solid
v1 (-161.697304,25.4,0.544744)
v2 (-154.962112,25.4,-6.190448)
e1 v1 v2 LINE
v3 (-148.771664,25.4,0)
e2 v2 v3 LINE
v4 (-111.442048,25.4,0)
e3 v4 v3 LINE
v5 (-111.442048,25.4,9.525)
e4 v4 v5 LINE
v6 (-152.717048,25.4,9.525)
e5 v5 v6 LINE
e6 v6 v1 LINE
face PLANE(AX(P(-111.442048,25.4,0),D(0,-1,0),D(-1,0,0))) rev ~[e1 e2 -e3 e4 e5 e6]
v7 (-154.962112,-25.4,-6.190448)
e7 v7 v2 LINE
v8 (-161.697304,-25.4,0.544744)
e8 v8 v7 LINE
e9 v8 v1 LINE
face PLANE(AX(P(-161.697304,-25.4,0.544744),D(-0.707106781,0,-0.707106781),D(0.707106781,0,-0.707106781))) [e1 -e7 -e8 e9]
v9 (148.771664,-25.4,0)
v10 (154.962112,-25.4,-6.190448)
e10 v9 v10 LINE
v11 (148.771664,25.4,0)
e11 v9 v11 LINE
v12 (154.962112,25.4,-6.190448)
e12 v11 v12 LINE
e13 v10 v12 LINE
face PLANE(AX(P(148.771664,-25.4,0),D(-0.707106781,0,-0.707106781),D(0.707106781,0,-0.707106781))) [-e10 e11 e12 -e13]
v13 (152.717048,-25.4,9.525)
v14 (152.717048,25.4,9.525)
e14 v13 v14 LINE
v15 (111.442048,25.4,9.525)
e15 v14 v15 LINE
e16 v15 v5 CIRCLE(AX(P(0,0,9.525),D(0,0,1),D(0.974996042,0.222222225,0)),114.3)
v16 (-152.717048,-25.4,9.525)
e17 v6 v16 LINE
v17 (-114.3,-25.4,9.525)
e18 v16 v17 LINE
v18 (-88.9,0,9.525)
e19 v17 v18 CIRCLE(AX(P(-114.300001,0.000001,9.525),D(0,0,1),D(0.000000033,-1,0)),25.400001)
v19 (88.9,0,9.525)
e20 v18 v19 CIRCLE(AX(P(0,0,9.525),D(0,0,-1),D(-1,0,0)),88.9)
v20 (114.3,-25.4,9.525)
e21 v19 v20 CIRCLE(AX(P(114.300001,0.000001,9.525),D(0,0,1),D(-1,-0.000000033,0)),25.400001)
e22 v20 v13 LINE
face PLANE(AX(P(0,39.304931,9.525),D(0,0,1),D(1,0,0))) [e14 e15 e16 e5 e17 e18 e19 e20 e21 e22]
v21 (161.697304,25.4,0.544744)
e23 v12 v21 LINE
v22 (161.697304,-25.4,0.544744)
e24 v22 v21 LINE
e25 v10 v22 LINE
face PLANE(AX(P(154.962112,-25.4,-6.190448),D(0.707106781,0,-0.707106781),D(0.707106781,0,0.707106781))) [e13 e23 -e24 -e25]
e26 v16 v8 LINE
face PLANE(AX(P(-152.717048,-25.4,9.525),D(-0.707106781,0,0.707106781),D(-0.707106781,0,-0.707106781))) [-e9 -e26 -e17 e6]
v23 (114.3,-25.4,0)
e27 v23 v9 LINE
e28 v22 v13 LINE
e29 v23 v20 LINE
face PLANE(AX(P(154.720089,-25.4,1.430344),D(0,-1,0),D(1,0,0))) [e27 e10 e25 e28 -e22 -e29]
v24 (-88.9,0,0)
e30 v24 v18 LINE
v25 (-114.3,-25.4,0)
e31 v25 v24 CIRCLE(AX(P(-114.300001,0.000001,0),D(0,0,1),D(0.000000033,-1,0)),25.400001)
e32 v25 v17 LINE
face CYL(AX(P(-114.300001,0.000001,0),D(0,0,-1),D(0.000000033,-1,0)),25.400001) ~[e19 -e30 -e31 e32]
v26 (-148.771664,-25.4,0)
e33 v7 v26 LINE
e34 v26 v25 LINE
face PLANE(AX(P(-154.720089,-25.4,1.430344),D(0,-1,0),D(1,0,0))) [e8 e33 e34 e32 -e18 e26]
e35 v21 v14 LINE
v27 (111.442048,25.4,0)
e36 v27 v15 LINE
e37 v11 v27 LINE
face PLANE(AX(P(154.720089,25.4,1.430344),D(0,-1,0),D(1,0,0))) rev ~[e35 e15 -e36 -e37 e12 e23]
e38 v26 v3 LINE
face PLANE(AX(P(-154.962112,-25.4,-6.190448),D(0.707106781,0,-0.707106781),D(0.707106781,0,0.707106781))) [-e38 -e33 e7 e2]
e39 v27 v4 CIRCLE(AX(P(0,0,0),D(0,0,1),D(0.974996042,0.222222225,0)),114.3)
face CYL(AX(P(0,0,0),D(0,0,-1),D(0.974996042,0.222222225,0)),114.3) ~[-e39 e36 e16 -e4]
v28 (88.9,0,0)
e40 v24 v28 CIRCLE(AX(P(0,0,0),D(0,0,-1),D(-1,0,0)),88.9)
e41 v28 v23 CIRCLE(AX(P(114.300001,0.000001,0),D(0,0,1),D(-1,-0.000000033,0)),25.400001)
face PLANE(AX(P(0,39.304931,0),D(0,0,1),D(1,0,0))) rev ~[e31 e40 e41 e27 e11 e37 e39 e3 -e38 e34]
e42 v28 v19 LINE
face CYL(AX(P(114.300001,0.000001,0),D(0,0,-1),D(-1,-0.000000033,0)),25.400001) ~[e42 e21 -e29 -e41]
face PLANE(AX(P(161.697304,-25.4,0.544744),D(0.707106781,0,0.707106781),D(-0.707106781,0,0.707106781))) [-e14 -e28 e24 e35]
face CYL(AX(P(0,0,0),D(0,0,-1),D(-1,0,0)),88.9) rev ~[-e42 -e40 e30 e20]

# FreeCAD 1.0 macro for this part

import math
import FreeCAD as App
import Part
import Sketcher
Q = App.Units.Quantity


def add_polygon(sketch, points):
    """Adds a closed chain of lines whose ends are joined by coincident constraints."""
    first, n = sketch.GeometryCount, len(points)
    for a, b in zip(points, points[1:] + points[:1]):
        sketch.addGeometry(Part.LineSegment(App.Vector(*a, 0), App.Vector(*b, 0)), False)
    for i in range(n):
        sketch.addConstraint(Sketcher.Constraint("Coincident", first + i, 2, first + (i + 1) % n, 1))

doc = App.newDocument("Part")
params = doc.addObject("Spreadsheet::Sheet", "Params")
for row, (alias, value) in enumerate([
    ("sketch1_radius", "1 in"),
    ("sketch1_radius2", "3.5 in"),
    ("sketch1_radius3", "4.5 in"),
    ("sketch1_width", "1.625 in"),
    ("pad1_length", "0.375 in"),
    ("sketch2_length", "0.5 in"),
    ("sketch2_length2", "0.375 in"),
    ("pad2_length", "2 in"),
    ("sketch3_length", "0.5 in"),
    ("sketch3_length2", "0.375 in"),
    ("pad3_length", "2 in"),
], start=1):
    params.set(f"A{row}", alias)
    params.set(f"B{row}", "=" + value)
    params.setAlias(f"B{row}", alias)

body = doc.addObject("PartDesign::Body", "Body")

# Sketch on XY plane
sketch1 = doc.addObject("Sketcher::SketchObject", "Sketch")
body.addObject(sketch1)
sketch1.AttachmentSupport = (doc.XY_Plane, [""])
sketch1.MapMode = "FlatFace"
sketch1.addGeometry(Part.ArcOfCircle(Part.Circle(App.Vector(0, 0, 0), App.Vector(0, 0, 1), 88.9), math.radians(0), math.radians(180)), False)
sketch1.addGeometry(Part.ArcOfCircle(Part.Circle(App.Vector(114.300001, 0.000001, 0), App.Vector(0, 0, 1), 25.400001), math.radians(-179.999998), math.radians(-90.000002)), False)
sketch1.addGeometry(Part.LineSegment(App.Vector(114.3, -25.4, 0), App.Vector(152.717048, -25.4, 0)), False)
sketch1.addGeometry(Part.LineSegment(App.Vector(152.717048, -25.4, 0), App.Vector(152.717048, 25.4, 0)), False)
sketch1.addGeometry(Part.LineSegment(App.Vector(152.717048, 25.4, 0), App.Vector(111.442048, 25.4, 0)), False)
sketch1.addGeometry(Part.ArcOfCircle(Part.Circle(App.Vector(0, 0, 0), App.Vector(0, 0, 1), 114.3), math.radians(12.839589), math.radians(167.160411)), False)
sketch1.addGeometry(Part.LineSegment(App.Vector(-111.442048, 25.4, 0), App.Vector(-152.717048, 25.4, 0)), False)
sketch1.addGeometry(Part.LineSegment(App.Vector(-152.717048, 25.4, 0), App.Vector(-152.717048, -25.4, 0)), False)
sketch1.addGeometry(Part.LineSegment(App.Vector(-152.717048, -25.4, 0), App.Vector(-114.3, -25.4, 0)), False)
sketch1.addGeometry(Part.ArcOfCircle(Part.Circle(App.Vector(-114.300001, 0.000001, 0), App.Vector(0, 0, 1), 25.400001), math.radians(-89.999998), math.radians(-0.000002)), False)
sketch1.addConstraint(Sketcher.Constraint("Tangent", 0, 1, 1, 1))
sketch1.addConstraint(Sketcher.Constraint("Tangent", 1, 2, 2, 1))
sketch1.addConstraint(Sketcher.Constraint("Coincident", 2, 2, 3, 1))
sketch1.addConstraint(Sketcher.Constraint("Coincident", 3, 2, 4, 1))
sketch1.addConstraint(Sketcher.Constraint("Coincident", 4, 2, 5, 1))
sketch1.addConstraint(Sketcher.Constraint("Coincident", 5, 2, 6, 1))
sketch1.addConstraint(Sketcher.Constraint("Coincident", 6, 2, 7, 1))
sketch1.addConstraint(Sketcher.Constraint("Coincident", 7, 2, 8, 1))
sketch1.addConstraint(Sketcher.Constraint("Tangent", 8, 2, 9, 1))
sketch1.addConstraint(Sketcher.Constraint("Tangent", 9, 2, 0, 2))
sketch1.addConstraint(Sketcher.Constraint("Horizontal", 2))
sketch1.addConstraint(Sketcher.Constraint("Vertical", 3))
sketch1.addConstraint(Sketcher.Constraint("Horizontal", 4))
sketch1.addConstraint(Sketcher.Constraint("Horizontal", 6))
sketch1.addConstraint(Sketcher.Constraint("Vertical", 7))
sketch1.addConstraint(Sketcher.Constraint("Horizontal", 8))
sketch1.addConstraint(Sketcher.Constraint("Coincident", 0, 3, -1, 1))
sketch1.addConstraint(Sketcher.Constraint("Coincident", 5, 3, -1, 1))
sketch1.addConstraint(Sketcher.Constraint("Equal", 1, 9))
sketch1.addConstraint(Sketcher.Constraint("Symmetric", 2, 2, 6, 2, -1, 1))
sketch1.addConstraint(Sketcher.Constraint("PointOnObject", 1, 3, -1))
sketch1.addConstraint(Sketcher.Constraint("PointOnObject", 9, 3, -1))
sketch1.addConstraint(Sketcher.Constraint("Horizontal", 4, 2, 5, 2))
sketch1.addConstraint(Sketcher.Constraint("Radius", 1, Q("1 in")))
sketch1.addConstraint(Sketcher.Constraint("Radius", 0, Q("3.5 in")))
sketch1.addConstraint(Sketcher.Constraint("Radius", 5, Q("4.5 in")))
sketch1.addConstraint(Sketcher.Constraint("DistanceX", 4, 2, 4, 1, Q("1.625 in")))
sketch1.setExpression("Constraints[23]", "Params.sketch1_radius")
sketch1.setExpression("Constraints[24]", "Params.sketch1_radius2")
sketch1.setExpression("Constraints[25]", "Params.sketch1_radius3")
sketch1.setExpression("Constraints[26]", "Params.sketch1_width")
pad1 = doc.addObject("PartDesign::Pad", "Pad")
body.addObject(pad1)
pad1.Profile = sketch1
pad1.setExpression("Length", "Params.pad1_length")

# Sketch on XZ plane
sketch2 = doc.addObject("Sketcher::SketchObject", "Sketch001")
body.addObject(sketch2)
sketch2.AttachmentSupport = (doc.XZ_Plane, [""])
sketch2.MapMode = "FlatFace"
sketch2.AttachmentOffset = App.Placement(App.Vector(0, 0, 1 * 25.4), App.Rotation())
add_polygon(sketch2, [(161.697304, 0.544744), (152.717048, 9.525), (148.771664, 0), (154.962112, -6.190448)])  # lines 0-3
sketch2.addConstraint(Sketcher.Constraint("PointOnObject", 1, 2, -1))
sketch2.addConstraint(Sketcher.Constraint("Parallel", 0, 2))
sketch2.addConstraint(Sketcher.Constraint("Perpendicular", 2, 3))
sketch2.addConstraint(Sketcher.Constraint("Angle", 0, Q("135 deg")))
sketch2.addConstraint(Sketcher.Constraint("Distance", 0, Q("0.5 in")))
sketch2.addConstraint(Sketcher.Constraint("Angle", 1, Q("-112.499999 deg")))
sketch2.addConstraint(Sketcher.Constraint("Distance", 3, Q("0.375 in")))
sketch2.addConstraint(Sketcher.Constraint("DistanceX", -1, 1, 0, 2, Q("152.717048 mm")))
sketch2.setExpression("Constraints[8]", "Params.sketch2_length")
sketch2.setExpression("Constraints[10]", "Params.sketch2_length2")
pad2 = doc.addObject("PartDesign::Pad", "Pad001")
body.addObject(pad2)
pad2.Profile = sketch2
pad2.setExpression("Length", "Params.pad2_length")
pad2.Reversed = True

# Sketch on XZ plane
sketch3 = doc.addObject("Sketcher::SketchObject", "Sketch002")
body.addObject(sketch3)
sketch3.AttachmentSupport = (doc.XZ_Plane, [""])
sketch3.MapMode = "FlatFace"
sketch3.AttachmentOffset = App.Placement(App.Vector(0, 0, 1 * 25.4), App.Rotation())
add_polygon(sketch3, [(-148.771664, 0), (-152.717048, 9.525), (-161.697304, 0.544744), (-154.962112, -6.190448)])  # lines 0-3
sketch3.addConstraint(Sketcher.Constraint("PointOnObject", 3, 2, -1))
sketch3.addConstraint(Sketcher.Constraint("Perpendicular", 1, 2))
sketch3.addConstraint(Sketcher.Constraint("Perpendicular", 2, 3))
sketch3.addConstraint(Sketcher.Constraint("Angle", 1, Q("-135 deg")))
sketch3.addConstraint(Sketcher.Constraint("Distance", 1, Q("0.5 in")))
sketch3.addConstraint(Sketcher.Constraint("Angle", 0, Q("112.499999 deg")))
sketch3.addConstraint(Sketcher.Constraint("Distance", 2, Q("0.375 in")))
sketch3.addConstraint(Sketcher.Constraint("DistanceX", 0, 2, -1, 1, Q("152.717048 mm")))
sketch3.setExpression("Constraints[8]", "Params.sketch3_length")
sketch3.setExpression("Constraints[10]", "Params.sketch3_length2")
pad3 = doc.addObject("PartDesign::Pad", "Pad002")
body.addObject(pad3)
pad3.Profile = sketch3
pad3.setExpression("Length", "Params.pad3_length")
pad3.Reversed = True

doc.recompute()
